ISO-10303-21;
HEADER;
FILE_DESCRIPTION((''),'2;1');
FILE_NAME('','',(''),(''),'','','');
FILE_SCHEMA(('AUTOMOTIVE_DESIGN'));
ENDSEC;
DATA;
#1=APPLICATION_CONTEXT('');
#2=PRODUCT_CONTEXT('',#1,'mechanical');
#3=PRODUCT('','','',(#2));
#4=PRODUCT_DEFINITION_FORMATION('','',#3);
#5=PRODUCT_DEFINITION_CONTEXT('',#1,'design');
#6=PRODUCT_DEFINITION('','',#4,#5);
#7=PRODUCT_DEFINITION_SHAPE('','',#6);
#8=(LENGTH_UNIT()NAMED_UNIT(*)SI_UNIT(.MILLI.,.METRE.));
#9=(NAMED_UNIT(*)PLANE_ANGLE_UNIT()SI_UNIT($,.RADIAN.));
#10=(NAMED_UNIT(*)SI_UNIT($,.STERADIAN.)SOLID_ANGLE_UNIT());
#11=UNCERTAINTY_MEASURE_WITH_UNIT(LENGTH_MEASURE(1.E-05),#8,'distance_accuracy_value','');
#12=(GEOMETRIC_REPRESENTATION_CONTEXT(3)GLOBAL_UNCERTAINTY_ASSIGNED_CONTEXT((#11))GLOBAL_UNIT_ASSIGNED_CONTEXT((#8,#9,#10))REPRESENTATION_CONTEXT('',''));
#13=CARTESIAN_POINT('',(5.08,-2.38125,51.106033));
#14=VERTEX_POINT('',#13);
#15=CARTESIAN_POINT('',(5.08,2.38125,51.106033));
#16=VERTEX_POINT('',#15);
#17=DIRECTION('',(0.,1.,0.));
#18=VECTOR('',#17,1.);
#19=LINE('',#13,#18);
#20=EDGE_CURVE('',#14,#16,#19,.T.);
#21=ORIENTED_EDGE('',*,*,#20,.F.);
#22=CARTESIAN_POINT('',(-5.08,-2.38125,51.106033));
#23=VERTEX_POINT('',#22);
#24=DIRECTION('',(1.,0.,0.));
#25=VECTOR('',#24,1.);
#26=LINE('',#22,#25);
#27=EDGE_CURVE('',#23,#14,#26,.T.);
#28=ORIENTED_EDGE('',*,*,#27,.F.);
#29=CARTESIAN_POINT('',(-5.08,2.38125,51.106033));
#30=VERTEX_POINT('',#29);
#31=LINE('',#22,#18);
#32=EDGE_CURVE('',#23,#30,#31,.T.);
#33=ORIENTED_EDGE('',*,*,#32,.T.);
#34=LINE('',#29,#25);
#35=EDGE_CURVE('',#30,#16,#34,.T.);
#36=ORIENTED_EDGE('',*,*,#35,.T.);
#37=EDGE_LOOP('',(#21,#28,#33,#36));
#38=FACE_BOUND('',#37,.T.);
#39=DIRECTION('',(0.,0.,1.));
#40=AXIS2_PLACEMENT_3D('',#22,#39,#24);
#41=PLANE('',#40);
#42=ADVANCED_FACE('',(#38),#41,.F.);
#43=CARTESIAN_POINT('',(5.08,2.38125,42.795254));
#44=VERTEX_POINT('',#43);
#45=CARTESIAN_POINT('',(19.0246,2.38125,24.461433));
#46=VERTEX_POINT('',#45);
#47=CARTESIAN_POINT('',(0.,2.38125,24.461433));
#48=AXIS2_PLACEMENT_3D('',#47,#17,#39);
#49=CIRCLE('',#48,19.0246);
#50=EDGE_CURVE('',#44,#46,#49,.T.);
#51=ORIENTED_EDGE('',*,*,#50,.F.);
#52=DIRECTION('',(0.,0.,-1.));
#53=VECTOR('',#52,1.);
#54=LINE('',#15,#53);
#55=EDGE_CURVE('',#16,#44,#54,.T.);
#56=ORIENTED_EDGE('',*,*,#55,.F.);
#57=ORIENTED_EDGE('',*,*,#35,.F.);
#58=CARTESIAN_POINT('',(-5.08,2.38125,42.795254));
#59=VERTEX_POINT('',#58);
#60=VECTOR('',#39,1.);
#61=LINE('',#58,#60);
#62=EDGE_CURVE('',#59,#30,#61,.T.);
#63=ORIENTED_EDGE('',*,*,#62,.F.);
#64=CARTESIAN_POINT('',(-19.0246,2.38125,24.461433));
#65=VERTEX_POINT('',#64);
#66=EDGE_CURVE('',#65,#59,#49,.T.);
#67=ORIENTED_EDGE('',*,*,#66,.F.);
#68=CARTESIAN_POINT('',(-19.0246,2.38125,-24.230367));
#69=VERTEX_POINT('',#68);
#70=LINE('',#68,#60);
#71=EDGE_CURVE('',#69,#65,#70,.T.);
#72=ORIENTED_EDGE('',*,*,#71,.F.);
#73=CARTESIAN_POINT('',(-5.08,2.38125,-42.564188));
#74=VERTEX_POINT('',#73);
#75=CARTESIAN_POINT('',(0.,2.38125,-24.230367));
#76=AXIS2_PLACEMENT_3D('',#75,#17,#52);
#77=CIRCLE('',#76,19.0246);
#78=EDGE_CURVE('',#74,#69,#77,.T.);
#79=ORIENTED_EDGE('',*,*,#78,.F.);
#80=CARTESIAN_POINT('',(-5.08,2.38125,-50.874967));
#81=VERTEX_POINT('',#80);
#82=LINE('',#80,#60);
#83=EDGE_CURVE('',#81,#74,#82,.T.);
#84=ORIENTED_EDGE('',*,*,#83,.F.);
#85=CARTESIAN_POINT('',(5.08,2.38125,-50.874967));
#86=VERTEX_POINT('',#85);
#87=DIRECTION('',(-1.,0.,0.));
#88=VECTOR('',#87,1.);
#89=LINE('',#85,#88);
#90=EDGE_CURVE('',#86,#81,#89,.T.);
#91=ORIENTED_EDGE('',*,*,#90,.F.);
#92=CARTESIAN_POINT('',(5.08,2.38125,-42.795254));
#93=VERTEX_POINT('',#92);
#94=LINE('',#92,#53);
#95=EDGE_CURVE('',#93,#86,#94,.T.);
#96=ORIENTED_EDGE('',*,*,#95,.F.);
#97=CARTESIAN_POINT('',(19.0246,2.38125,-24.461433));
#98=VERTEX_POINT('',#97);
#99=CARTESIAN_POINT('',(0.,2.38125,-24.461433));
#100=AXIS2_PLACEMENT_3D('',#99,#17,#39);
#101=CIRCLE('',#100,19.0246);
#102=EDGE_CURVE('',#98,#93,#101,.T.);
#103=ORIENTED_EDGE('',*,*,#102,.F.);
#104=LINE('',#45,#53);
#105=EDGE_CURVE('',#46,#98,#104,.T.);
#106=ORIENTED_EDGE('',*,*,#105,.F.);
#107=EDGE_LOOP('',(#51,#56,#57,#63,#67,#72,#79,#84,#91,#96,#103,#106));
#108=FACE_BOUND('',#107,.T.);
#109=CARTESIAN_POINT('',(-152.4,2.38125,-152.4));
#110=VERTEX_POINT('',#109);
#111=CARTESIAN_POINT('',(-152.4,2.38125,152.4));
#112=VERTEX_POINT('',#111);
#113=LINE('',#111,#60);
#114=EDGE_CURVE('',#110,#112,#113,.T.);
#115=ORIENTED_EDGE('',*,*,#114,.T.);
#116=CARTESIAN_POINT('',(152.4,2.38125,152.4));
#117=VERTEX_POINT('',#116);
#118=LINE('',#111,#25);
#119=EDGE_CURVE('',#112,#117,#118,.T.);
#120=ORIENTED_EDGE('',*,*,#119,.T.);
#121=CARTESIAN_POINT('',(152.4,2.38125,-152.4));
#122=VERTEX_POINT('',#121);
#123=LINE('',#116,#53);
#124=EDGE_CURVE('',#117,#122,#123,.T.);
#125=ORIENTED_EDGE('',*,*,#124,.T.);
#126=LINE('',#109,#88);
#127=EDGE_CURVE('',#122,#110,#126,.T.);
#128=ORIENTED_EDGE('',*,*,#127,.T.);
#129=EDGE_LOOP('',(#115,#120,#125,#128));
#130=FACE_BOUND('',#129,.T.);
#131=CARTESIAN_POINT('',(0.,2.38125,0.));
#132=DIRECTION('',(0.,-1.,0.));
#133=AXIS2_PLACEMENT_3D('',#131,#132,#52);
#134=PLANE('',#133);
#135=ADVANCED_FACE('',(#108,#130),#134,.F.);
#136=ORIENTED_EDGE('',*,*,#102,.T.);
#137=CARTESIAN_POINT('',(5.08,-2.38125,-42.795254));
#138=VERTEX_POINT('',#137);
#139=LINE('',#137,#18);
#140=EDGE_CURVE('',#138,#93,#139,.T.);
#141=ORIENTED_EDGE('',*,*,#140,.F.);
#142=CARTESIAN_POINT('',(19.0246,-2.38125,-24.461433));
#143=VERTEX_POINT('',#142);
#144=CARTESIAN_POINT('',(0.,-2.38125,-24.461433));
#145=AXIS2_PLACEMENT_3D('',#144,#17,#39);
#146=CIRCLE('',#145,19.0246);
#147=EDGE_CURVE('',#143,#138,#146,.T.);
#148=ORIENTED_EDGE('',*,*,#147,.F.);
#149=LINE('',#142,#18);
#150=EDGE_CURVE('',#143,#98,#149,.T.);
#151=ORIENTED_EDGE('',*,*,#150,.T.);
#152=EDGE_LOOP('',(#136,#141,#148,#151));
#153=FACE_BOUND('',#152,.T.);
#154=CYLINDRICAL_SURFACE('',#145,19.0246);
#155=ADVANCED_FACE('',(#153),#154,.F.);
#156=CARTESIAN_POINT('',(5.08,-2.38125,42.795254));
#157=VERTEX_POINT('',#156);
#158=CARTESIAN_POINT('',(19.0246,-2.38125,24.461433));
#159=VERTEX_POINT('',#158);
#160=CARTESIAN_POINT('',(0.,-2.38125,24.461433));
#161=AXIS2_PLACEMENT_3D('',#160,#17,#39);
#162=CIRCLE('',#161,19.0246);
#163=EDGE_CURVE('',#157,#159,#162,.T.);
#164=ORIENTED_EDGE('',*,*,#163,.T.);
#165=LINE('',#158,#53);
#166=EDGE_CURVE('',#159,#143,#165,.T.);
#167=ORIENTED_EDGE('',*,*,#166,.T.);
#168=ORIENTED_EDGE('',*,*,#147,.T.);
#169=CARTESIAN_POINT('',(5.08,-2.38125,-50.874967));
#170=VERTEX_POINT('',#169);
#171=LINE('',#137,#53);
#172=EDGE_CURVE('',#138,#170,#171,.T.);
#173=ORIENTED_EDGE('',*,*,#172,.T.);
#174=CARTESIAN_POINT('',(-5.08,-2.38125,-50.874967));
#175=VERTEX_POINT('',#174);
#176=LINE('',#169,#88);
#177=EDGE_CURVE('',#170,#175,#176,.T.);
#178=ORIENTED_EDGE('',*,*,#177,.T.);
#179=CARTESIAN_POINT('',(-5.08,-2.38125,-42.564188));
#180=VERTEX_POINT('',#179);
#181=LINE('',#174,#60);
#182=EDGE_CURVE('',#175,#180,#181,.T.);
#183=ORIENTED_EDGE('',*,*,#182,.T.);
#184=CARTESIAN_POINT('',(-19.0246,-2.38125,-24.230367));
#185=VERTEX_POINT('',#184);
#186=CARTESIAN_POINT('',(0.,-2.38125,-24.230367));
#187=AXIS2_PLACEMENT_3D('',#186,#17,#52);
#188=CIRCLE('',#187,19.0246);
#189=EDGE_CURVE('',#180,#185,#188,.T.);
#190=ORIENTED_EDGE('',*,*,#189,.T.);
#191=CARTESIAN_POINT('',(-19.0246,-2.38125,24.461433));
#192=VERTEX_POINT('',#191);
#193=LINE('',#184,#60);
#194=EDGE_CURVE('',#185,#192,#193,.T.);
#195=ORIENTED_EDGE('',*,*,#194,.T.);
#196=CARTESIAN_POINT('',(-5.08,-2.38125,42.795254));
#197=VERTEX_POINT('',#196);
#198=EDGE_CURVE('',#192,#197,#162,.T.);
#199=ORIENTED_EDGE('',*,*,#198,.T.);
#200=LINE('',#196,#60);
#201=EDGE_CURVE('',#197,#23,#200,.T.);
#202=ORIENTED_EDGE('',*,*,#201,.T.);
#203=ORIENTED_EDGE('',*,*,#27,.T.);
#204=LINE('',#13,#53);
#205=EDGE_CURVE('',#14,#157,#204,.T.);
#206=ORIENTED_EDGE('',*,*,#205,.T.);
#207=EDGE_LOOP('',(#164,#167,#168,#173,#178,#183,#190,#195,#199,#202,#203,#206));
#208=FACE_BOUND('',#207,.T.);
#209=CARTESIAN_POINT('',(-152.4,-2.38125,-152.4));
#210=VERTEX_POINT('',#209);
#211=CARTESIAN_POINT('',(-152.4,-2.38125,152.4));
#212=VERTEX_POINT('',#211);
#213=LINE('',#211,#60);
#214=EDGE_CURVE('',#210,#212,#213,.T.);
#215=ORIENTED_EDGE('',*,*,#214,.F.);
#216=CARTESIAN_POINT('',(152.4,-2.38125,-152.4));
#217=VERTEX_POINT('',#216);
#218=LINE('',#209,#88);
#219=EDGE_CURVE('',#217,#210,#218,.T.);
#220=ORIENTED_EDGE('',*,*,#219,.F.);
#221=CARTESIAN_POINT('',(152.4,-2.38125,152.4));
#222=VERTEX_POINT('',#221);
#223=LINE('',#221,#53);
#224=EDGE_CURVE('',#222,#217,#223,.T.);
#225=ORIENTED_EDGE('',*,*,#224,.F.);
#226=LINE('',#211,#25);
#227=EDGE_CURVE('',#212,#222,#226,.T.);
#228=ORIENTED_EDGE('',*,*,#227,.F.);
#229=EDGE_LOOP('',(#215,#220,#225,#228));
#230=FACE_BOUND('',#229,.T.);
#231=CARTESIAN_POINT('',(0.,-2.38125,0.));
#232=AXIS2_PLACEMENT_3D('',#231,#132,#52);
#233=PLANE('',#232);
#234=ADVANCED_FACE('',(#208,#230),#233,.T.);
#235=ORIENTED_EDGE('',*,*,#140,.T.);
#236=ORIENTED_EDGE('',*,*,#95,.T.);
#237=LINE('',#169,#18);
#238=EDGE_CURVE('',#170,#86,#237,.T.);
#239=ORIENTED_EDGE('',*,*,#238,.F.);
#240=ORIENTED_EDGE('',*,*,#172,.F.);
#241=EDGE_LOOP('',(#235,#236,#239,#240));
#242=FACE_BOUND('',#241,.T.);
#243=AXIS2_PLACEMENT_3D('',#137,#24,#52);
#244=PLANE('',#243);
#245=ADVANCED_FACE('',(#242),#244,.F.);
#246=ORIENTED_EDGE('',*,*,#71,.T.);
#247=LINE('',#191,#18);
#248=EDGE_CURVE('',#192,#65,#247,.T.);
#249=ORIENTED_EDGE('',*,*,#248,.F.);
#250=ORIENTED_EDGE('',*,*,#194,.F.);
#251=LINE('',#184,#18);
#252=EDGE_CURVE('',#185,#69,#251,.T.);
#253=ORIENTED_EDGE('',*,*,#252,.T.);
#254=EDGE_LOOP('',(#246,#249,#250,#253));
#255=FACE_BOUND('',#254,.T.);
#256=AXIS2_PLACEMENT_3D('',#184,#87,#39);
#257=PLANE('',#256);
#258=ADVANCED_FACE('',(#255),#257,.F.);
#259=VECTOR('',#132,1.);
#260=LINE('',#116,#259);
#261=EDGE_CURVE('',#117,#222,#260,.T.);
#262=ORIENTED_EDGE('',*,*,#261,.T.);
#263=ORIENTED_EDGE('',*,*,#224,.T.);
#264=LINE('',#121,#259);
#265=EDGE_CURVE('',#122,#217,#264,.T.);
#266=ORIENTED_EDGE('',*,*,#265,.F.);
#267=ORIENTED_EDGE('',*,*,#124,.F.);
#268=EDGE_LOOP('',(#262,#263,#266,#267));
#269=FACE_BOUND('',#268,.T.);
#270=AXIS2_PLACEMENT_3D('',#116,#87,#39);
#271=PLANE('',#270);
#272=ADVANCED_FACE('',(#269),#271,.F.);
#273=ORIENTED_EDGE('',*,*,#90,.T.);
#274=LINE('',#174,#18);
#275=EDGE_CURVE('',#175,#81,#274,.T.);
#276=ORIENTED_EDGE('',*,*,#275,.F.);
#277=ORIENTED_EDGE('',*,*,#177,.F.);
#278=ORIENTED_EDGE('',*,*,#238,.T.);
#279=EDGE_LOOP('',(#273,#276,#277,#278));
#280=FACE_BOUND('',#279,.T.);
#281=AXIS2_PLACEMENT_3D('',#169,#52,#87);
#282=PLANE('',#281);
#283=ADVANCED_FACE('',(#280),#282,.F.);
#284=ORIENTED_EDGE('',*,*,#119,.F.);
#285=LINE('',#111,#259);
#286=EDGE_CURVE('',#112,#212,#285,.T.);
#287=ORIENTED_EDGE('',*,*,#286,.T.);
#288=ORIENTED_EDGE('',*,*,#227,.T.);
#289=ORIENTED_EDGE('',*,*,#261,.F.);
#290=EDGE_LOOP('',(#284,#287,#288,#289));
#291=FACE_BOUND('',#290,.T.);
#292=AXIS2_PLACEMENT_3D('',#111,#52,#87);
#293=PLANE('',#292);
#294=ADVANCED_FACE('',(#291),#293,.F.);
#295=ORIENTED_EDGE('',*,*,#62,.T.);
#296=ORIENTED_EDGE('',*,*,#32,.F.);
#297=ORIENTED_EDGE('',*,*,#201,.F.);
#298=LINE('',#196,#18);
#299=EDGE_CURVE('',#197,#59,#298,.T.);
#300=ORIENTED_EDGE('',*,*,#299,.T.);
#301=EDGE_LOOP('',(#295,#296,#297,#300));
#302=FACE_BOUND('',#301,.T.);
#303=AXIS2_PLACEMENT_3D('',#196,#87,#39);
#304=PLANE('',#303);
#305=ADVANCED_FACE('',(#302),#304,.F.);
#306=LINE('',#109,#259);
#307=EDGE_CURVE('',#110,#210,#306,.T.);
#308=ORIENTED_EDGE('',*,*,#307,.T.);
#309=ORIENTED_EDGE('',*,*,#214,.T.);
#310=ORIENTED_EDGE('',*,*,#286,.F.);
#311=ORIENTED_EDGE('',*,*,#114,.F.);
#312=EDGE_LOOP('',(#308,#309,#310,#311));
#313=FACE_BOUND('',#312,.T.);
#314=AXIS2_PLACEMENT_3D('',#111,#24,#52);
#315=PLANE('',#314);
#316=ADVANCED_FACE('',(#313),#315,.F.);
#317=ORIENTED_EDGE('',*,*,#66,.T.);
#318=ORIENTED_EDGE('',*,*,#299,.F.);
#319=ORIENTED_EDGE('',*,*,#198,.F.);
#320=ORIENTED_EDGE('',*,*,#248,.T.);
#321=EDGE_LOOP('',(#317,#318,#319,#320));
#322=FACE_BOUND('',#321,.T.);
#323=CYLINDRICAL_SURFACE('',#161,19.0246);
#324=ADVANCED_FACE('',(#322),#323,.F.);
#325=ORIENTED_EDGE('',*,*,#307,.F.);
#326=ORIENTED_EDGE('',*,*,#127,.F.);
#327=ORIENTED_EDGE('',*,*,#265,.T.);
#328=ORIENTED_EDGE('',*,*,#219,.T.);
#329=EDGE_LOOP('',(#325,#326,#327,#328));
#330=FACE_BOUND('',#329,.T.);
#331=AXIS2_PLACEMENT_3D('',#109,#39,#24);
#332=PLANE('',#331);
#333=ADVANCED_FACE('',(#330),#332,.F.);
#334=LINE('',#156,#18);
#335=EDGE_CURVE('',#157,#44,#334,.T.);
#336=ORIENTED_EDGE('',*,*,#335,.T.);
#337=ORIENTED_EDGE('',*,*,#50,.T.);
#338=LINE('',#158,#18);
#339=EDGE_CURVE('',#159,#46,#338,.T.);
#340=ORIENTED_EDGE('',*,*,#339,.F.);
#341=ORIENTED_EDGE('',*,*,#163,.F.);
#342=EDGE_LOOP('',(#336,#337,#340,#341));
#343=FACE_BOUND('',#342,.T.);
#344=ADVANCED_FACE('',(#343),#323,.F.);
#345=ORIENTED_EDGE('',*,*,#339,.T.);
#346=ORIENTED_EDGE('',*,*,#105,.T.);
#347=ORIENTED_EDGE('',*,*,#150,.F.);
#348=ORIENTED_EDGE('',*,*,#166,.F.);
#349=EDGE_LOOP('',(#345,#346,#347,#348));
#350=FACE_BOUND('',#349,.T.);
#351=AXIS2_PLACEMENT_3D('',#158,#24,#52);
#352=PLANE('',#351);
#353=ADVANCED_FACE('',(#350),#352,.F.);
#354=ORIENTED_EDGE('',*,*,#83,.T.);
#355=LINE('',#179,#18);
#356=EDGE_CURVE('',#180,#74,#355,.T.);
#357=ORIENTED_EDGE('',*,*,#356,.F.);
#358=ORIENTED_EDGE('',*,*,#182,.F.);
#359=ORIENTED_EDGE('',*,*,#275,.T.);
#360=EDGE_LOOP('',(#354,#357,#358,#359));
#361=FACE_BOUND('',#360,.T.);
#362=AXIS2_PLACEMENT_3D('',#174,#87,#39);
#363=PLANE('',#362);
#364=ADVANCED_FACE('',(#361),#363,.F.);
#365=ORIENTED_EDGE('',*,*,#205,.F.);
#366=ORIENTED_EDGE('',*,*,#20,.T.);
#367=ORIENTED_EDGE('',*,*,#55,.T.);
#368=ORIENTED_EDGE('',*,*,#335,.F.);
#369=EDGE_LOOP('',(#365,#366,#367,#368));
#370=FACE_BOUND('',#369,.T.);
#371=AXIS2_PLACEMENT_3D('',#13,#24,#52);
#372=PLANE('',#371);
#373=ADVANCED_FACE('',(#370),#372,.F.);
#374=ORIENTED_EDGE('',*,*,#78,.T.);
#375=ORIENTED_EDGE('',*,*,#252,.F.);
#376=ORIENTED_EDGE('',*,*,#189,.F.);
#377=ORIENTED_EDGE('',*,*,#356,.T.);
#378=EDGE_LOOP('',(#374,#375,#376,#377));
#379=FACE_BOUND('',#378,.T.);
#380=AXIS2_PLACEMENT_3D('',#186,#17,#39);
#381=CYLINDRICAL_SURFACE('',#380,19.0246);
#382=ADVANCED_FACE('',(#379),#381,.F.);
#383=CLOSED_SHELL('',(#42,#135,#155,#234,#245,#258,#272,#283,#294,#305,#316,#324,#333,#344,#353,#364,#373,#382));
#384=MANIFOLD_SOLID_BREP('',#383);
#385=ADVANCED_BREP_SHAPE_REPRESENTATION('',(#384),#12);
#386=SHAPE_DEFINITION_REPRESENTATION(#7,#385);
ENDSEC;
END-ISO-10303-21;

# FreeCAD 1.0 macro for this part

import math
import FreeCAD as App
import Part
import Sketcher

V = App.Vector
Q = App.Units.Quantity


def add_polygon(sketch, points):
    """Adds a closed chain of lines whose ends are joined by coincident constraints."""
    first, n = sketch.GeometryCount, len(points)
    for a, b in zip(points, points[1:] + points[:1]):
        sketch.addGeometry(Part.LineSegment(App.Vector(*a, 0), App.Vector(*b, 0)), False)
    for i in range(n):
        sketch.addConstraint(Sketcher.Constraint("Coincident", first + i, 2, first + (i + 1) % n, 1))

doc = App.newDocument("Part")
body = doc.addObject("PartDesign::Body", "Body")

# Sketch on XZ plane
sketch1 = doc.addObject("Sketcher::SketchObject", "Sketch")
body.addObject(sketch1)
sketch1.AttachmentSupport = (doc.XZ_Plane, [""])
sketch1.MapMode = "FlatFace"
add_polygon(sketch1, [(-152, -152), (-152, 152), (152, 152), (152, -152)])  # lines 0-3
sketch1.addConstraint(Sketcher.Constraint("Vertical", 0))
sketch1.addConstraint(Sketcher.Constraint("Horizontal", 1))
sketch1.addConstraint(Sketcher.Constraint("Vertical", 2))
sketch1.addConstraint(Sketcher.Constraint("Horizontal", 3))
sketch1.addConstraint(Sketcher.Constraint("Symmetric", 0, 2, 2, 2, -1, 1))
sketch1.addConstraint(Sketcher.Constraint("Equal", 3, 0))
sketch1.addConstraint(Sketcher.Constraint("DistanceX", 1, 1, 1, 2, Q("12 in")))
pad1 = doc.addObject("PartDesign::Pad", "Pad")
body.addObject(pad1)
pad1.Profile = sketch1
pad1.Length = Q("0.1875 in")
pad1.Midplane = True

# Sketch on XZ plane
sketch2 = doc.addObject("Sketcher::SketchObject", "Sketch001")
body.addObject(sketch2)
sketch2.AttachmentSupport = (doc.XZ_Plane, [""])
sketch2.MapMode = "FlatFace"
sketch2.AttachmentOffset = App.Placement(V(0, 0, -0.09375 * 25.4), App.Rotation())
sketch2.addGeometry(Part.LineSegment(V(-5, 51, 0), V(5, 51, 0)), False)
sketch2.addGeometry(Part.LineSegment(V(5, 51, 0), V(5, 43, 0)), False)
sketch2.addGeometry(Part.ArcOfCircle(Part.Circle(V(0, 24, 0), V(0, 0, 1), 19), math.radians(0), math.radians(75)), False)
sketch2.addGeometry(Part.LineSegment(V(19, 24, 0), V(19, -24, 0)), False)
sketch2.addGeometry(Part.ArcOfCircle(Part.Circle(V(0, -24, 0), V(0, 0, 1), 19), math.radians(-75), math.radians(0)), False)
sketch2.addGeometry(Part.LineSegment(V(5, -43, 0), V(5, -51, 0)), False)
sketch2.addGeometry(Part.LineSegment(V(5, -51, 0), V(-5, -51, 0)), False)
sketch2.addGeometry(Part.LineSegment(V(-5, -51, 0), V(-5, -43, 0)), False)
sketch2.addGeometry(Part.ArcOfCircle(Part.Circle(V(0, -24, 0), V(0, 0, 1), 19), math.radians(-180), math.radians(-105)), False)
sketch2.addGeometry(Part.LineSegment(V(-19, -24, 0), V(-19, 24, 0)), False)
sketch2.addGeometry(Part.ArcOfCircle(Part.Circle(V(0, 24, 0), V(0, 0, 1), 19), math.radians(105), math.radians(180)), False)
sketch2.addGeometry(Part.LineSegment(V(-5, 43, 0), V(-5, 51, 0)), False)
sketch2.addConstraint(Sketcher.Constraint("Coincident", 0, 2, 1, 1))
sketch2.addConstraint(Sketcher.Constraint("Coincident", 1, 2, 2, 2))
sketch2.addConstraint(Sketcher.Constraint("Tangent", 2, 1, 3, 1))
sketch2.addConstraint(Sketcher.Constraint("Tangent", 3, 2, 4, 2))
sketch2.addConstraint(Sketcher.Constraint("Coincident", 4, 1, 5, 1))
sketch2.addConstraint(Sketcher.Constraint("Coincident", 5, 2, 6, 1))
sketch2.addConstraint(Sketcher.Constraint("Coincident", 6, 2, 7, 1))
sketch2.addConstraint(Sketcher.Constraint("Coincident", 7, 2, 8, 2))
sketch2.addConstraint(Sketcher.Constraint("Tangent", 8, 1, 9, 1))
sketch2.addConstraint(Sketcher.Constraint("Tangent", 9, 2, 10, 2))
sketch2.addConstraint(Sketcher.Constraint("Coincident", 10, 1, 11, 1))
sketch2.addConstraint(Sketcher.Constraint("Coincident", 11, 2, 0, 1))
sketch2.addConstraint(Sketcher.Constraint("Horizontal", 0))
sketch2.addConstraint(Sketcher.Constraint("Vertical", 1))
sketch2.addConstraint(Sketcher.Constraint("Vertical", 3))
sketch2.addConstraint(Sketcher.Constraint("Vertical", 5))
sketch2.addConstraint(Sketcher.Constraint("Horizontal", 6))
sketch2.addConstraint(Sketcher.Constraint("Vertical", 7))
sketch2.addConstraint(Sketcher.Constraint("Vertical", 9))
sketch2.addConstraint(Sketcher.Constraint("Vertical", 11))
sketch2.addConstraint(Sketcher.Constraint("Coincident", 10, 3, 2, 3))
sketch2.addConstraint(Sketcher.Constraint("Equal", 2, 4))
sketch2.addConstraint(Sketcher.Constraint("Equal", 4, 8))
sketch2.addConstraint(Sketcher.Constraint("Equal", 8, 10))
sketch2.addConstraint(Sketcher.Constraint("Symmetric", 2, 3, 4, 3, -1, 1))
sketch2.addConstraint(Sketcher.Constraint("Horizontal", 1, 2, 10, 1))
sketch2.addConstraint(Sketcher.Constraint("Vertical", 1, 2, 4, 1))
sketch2.addConstraint(Sketcher.Constraint("Vertical", 7, 2, 10, 1))
sketch2.addConstraint(Sketcher.Constraint("Equal", 1, 7))
sketch2.addConstraint(Sketcher.Constraint("DistanceX", 0, 1, 0, 2, Q("0.4 in")))
sketch2.addConstraint(Sketcher.Constraint("Radius", 2, Q("0.749 in")))
sketch2.addConstraint(Sketcher.Constraint("DistanceY", 9, 1, 9, 2, Q("1.917 in")))
sketch2.addConstraint(Sketcher.Constraint("DistanceY", 2, 3, 0, 2, Q("1.049 in")))
sketch2.addConstraint(Sketcher.Constraint("DistanceY", 3, 2, 3, 1, Q("48.922866 mm")))
pocket1 = doc.addObject("PartDesign::Pocket", "Pocket")
body.addObject(pocket1)
pocket1.Profile = sketch2
pocket1.Type = "ThroughAll"
pocket1.Reversed = True

doc.recompute()
